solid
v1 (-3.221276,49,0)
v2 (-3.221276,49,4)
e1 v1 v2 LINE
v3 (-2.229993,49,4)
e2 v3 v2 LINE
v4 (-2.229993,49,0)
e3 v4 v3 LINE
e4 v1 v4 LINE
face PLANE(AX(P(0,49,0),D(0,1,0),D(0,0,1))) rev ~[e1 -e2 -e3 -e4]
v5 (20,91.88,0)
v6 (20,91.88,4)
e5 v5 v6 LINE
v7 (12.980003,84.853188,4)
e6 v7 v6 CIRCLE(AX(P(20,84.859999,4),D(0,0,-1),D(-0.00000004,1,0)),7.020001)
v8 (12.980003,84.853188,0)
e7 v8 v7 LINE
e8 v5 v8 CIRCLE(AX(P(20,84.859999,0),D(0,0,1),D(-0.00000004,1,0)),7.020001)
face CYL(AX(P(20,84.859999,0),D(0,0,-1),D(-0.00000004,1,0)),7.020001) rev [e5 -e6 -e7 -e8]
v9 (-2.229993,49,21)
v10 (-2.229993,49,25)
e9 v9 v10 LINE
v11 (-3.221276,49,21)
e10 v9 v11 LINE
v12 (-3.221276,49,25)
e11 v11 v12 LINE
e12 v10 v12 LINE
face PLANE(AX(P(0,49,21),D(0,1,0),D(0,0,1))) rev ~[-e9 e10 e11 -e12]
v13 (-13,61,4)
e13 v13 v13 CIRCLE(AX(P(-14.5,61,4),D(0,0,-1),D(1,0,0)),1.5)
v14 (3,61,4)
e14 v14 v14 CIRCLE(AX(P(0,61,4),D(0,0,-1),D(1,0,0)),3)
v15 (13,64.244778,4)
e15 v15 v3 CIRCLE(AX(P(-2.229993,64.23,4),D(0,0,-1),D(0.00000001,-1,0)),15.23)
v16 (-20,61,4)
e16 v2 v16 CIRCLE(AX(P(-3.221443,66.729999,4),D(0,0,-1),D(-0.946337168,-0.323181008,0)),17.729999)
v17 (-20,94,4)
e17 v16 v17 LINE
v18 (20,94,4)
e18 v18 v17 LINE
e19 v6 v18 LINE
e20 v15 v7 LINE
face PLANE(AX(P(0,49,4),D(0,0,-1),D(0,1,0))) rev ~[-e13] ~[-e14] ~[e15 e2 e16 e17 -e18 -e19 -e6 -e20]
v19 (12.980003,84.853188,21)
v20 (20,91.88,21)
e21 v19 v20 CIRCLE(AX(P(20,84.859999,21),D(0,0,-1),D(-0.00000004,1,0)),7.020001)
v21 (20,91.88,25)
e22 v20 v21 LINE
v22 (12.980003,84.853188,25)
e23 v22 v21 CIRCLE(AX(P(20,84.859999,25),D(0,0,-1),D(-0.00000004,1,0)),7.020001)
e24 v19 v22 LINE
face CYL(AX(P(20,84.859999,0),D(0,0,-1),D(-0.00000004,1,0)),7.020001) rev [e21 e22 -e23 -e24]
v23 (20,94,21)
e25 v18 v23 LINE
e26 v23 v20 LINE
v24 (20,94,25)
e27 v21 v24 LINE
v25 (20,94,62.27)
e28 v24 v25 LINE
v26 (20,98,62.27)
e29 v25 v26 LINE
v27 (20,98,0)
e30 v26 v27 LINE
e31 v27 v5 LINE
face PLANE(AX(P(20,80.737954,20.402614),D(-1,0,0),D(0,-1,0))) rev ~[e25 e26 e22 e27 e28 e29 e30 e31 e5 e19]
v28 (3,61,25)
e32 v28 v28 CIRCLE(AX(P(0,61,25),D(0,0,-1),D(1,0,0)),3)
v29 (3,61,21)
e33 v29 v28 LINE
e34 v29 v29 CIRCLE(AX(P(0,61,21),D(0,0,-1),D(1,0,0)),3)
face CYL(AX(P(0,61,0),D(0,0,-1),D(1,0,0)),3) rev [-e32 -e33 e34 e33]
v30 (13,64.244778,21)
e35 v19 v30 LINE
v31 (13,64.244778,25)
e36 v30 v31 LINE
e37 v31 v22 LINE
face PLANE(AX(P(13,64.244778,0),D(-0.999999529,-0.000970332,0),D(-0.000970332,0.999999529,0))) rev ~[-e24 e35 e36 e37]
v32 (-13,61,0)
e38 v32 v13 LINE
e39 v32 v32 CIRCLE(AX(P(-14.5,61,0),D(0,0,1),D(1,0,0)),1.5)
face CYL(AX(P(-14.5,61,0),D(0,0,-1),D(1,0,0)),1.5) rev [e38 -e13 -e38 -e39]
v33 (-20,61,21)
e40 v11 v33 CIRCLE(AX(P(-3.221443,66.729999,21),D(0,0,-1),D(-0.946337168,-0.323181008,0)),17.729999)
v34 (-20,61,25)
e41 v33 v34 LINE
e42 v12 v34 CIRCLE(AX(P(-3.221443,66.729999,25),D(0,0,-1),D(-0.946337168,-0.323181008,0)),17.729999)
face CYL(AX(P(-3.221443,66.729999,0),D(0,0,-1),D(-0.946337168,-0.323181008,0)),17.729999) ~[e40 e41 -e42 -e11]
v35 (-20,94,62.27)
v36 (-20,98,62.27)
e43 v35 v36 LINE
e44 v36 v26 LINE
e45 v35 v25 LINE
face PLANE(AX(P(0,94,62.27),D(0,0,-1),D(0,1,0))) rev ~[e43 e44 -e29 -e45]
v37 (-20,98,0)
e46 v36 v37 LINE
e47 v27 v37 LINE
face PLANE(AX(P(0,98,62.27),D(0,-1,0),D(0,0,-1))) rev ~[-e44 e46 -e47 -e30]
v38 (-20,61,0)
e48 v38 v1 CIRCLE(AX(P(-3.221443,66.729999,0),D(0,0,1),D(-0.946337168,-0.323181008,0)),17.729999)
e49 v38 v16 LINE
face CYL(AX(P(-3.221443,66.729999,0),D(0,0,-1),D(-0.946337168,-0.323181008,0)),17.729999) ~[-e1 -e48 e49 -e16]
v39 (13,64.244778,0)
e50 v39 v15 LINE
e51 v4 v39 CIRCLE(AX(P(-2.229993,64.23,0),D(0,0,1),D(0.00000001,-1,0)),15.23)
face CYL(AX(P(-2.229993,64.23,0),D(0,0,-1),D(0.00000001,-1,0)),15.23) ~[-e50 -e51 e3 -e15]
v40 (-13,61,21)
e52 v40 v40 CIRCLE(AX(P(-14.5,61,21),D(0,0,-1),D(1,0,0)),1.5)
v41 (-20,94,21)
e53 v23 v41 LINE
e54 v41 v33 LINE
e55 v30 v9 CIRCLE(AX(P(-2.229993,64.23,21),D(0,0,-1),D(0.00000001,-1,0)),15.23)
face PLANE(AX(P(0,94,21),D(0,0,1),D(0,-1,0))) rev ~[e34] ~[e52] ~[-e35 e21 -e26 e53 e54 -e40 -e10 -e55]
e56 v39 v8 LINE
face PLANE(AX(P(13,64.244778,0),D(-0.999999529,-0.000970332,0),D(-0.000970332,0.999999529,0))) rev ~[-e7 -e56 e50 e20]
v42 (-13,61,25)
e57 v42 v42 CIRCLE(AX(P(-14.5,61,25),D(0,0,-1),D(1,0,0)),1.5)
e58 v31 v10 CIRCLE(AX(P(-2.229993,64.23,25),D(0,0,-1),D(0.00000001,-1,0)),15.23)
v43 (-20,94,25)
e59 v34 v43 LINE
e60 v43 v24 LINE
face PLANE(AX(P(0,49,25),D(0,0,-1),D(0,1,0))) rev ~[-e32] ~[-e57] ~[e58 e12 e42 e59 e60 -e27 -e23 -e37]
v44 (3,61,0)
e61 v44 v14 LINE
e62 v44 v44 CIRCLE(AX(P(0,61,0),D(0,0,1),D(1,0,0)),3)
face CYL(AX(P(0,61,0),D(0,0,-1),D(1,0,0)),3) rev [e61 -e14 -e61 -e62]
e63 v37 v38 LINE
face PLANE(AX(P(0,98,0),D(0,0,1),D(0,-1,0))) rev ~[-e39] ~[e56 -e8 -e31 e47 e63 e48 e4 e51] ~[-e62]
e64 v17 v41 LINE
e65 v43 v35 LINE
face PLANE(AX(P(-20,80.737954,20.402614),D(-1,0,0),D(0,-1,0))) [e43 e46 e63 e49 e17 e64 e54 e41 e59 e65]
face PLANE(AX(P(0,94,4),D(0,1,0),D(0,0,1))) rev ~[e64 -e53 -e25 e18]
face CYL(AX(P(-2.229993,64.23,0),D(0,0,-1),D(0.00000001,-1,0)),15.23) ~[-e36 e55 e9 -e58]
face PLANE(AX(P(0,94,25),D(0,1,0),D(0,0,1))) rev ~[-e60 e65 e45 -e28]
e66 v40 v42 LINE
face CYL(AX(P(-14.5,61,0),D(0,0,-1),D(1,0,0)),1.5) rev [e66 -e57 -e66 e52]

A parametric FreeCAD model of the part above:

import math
import FreeCAD as App
import Part
import Sketcher

V = App.Vector
Q = App.Units.Quantity

doc = App.newDocument("Part")
body = doc.addObject("PartDesign::Body", "Body")

# Sketch on YZ plane
sketch1 = body.newObject("Sketcher::SketchObject", "Sketch")
sketch1.AttachmentSupport = (doc.getObject("YZ_Plane"), [""])
sketch1.MapMode = "FlatFace"
sketch1.addGeometry(Part.LineSegment(V(0, 0, 0), V(0, 62.3, 0)), False)
sketch1.addGeometry(Part.LineSegment(V(0, 62.3, 0), V(-4, 62.3, 0)), False)
sketch1.addGeometry(Part.LineSegment(V(-4, 62.3, 0), V(-4, 25, 0)), False)
sketch1.addGeometry(Part.LineSegment(V(-4, 25, 0), V(-49, 25, 0)), False)
sketch1.addGeometry(Part.LineSegment(V(-49, 25, 0), V(-49, 21, 0)), False)
sketch1.addGeometry(Part.LineSegment(V(-49, 21, 0), V(-4, 21, 0)), False)
sketch1.addGeometry(Part.LineSegment(V(-4, 21, 0), V(-4, 4, 0)), False)
sketch1.addGeometry(Part.LineSegment(V(-4, 4, 0), V(-49, 4, 0)), False)
sketch1.addGeometry(Part.LineSegment(V(-49, 4, 0), V(-49, 0, 0)), False)
sketch1.addGeometry(Part.LineSegment(V(-49, 0, 0), V(0, 0, 0)), False)
sketch1.addConstraint(Sketcher.Constraint("Coincident", 0, 2, 1, 1))
sketch1.addConstraint(Sketcher.Constraint("Coincident", 1, 2, 2, 1))
sketch1.addConstraint(Sketcher.Constraint("Coincident", 2, 2, 3, 1))
sketch1.addConstraint(Sketcher.Constraint("Coincident", 3, 2, 4, 1))
sketch1.addConstraint(Sketcher.Constraint("Coincident", 4, 2, 5, 1))
sketch1.addConstraint(Sketcher.Constraint("Coincident", 5, 2, 6, 1))
sketch1.addConstraint(Sketcher.Constraint("Coincident", 6, 2, 7, 1))
sketch1.addConstraint(Sketcher.Constraint("Coincident", 7, 2, 8, 1))
sketch1.addConstraint(Sketcher.Constraint("Coincident", 8, 2, 9, 1))
sketch1.addConstraint(Sketcher.Constraint("Coincident", 9, 2, 0, 1))
sketch1.addConstraint(Sketcher.Constraint("Vertical", 0))
sketch1.addConstraint(Sketcher.Constraint("Horizontal", 1))
sketch1.addConstraint(Sketcher.Constraint("Vertical", 2))
sketch1.addConstraint(Sketcher.Constraint("Horizontal", 3))
sketch1.addConstraint(Sketcher.Constraint("Vertical", 4))
sketch1.addConstraint(Sketcher.Constraint("Horizontal", 5))
sketch1.addConstraint(Sketcher.Constraint("Vertical", 6))
sketch1.addConstraint(Sketcher.Constraint("Horizontal", 7))
sketch1.addConstraint(Sketcher.Constraint("Vertical", 8))
sketch1.addConstraint(Sketcher.Constraint("Horizontal", 9))
sketch1.addConstraint(Sketcher.Constraint("Coincident", 9, 2, -1, 1))
sketch1.addConstraint(Sketcher.Constraint("Vertical", 2, 2, 5, 2))
sketch1.addConstraint(Sketcher.Constraint("Vertical", 4, 2, 7, 2))
sketch1.addConstraint(Sketcher.Constraint("Equal", 1, 4))
sketch1.addConstraint(Sketcher.Constraint("Equal", 4, 8))
sketch1.addConstraint(Sketcher.Constraint("DistanceX", 1, 2, 1, 1, Q("4 mm")))
sketch1.addConstraint(Sketcher.Constraint("DistanceX", 3, 2, 3, 1, Q("45 mm")))
sketch1.addConstraint(Sketcher.Constraint("DistanceY", 6, 2, 6, 1, Q("17 mm")))
sketch1.addConstraint(Sketcher.Constraint("DistanceY", 0, 1, 0, 2, Q("62.27 mm")))
pad1 = body.newObject("PartDesign::Pad", "Pad")
pad1.Profile = sketch1
pad1.Length = 40
pad1.Midplane = True

# Sketch on XY plane
sketch2 = body.newObject("Sketcher::SketchObject", "Sketch001")
sketch2.AttachmentSupport = (doc.getObject("XY_Plane"), [""])
sketch2.MapMode = "FlatFace"
sketch2.addGeometry(Part.Circle(V(0, -37, 0), V(0, 0, 1), 3), False)
sketch2.addConstraint(Sketcher.Constraint("PointOnObject", 0, 3, -2))
sketch2.addConstraint(Sketcher.Constraint("Diameter", 0, Q("6 mm")))
sketch2.addConstraint(Sketcher.Constraint("DistanceY", 0, 3, -1, 1, Q("37 mm")))
pocket1 = body.newObject("PartDesign::Pocket", "Pocket")
pocket1.Profile = sketch2
pocket1.Type = "ThroughAll"
pocket1.Reversed = True

# Sketch on XY plane
sketch3 = body.newObject("Sketcher::SketchObject", "Sketch002")
sketch3.AttachmentSupport = (doc.getObject("XY_Plane"), [""])
sketch3.MapMode = "FlatFace"
sketch3.addGeometry(Part.Circle(V(-14.5, -37, 0), V(0, 0, 1), 1.5), False)
sketch3.addGeometry(Part.ArcOfCircle(Part.Circle(V(-3.2, -31.3, 0), V(0, 0, 1), 17.7), math.radians(-161), math.radians(-90)), False)
sketch3.addGeometry(Part.LineSegment(V(-20, -37, 0), V(-20, -54.2, 0)), False)
sketch3.addGeometry(Part.LineSegment(V(-20, -54.2, 0), V(20, -54.2, 0)), False)
sketch3.addGeometry(Part.LineSegment(V(20, -54.2, 0), V(20, -6.1, 0)), False)
sketch3.addGeometry(Part.ArcOfCircle(Part.Circle(V(20, -13.1, 0), V(0, 0, 1), 7), math.radians(90), math.radians(180)), False)
sketch3.addGeometry(Part.LineSegment(V(13, -13.1, 0), V(13, -33.8, 0)), False)
sketch3.addGeometry(Part.ArcOfCircle(Part.Circle(V(-2.2, -33.8, 0), V(0, 0, 1), 15.2), math.radians(-90), math.radians(0)), False)
sketch3.addGeometry(Part.LineSegment(V(-2.2, -49, 0), V(-3.2, -49, 0)), False)
sketch3.addConstraint(Sketcher.Constraint("Coincident", 1, 1, 2, 1))
sketch3.addConstraint(Sketcher.Constraint("Coincident", 2, 2, 3, 1))
sketch3.addConstraint(Sketcher.Constraint("Coincident", 3, 2, 4, 1))
sketch3.addConstraint(Sketcher.Constraint("Coincident", 4, 2, 5, 1))
sketch3.addConstraint(Sketcher.Constraint("Tangent", 5, 2, 6, 1))
sketch3.addConstraint(Sketcher.Constraint("Tangent", 6, 2, 7, 2))
sketch3.addConstraint(Sketcher.Constraint("Tangent", 7, 1, 8, 1))
sketch3.addConstraint(Sketcher.Constraint("Coincident", 8, 2, 1, 2))
sketch3.addConstraint(Sketcher.Constraint("Vertical", 2))
sketch3.addConstraint(Sketcher.Constraint("Horizontal", 3))
sketch3.addConstraint(Sketcher.Constraint("Vertical", 4))
sketch3.addConstraint(Sketcher.Constraint("Horizontal", 8))
sketch3.addConstraint(Sketcher.Constraint("Horizontal", 0, 3, 1, 1))
sketch3.addConstraint(Sketcher.Constraint("Vertical", 5, 3, 3, 2))
sketch3.addConstraint(Sketcher.Constraint("Diameter", 0, Q("3 mm")))
sketch3.addConstraint(Sketcher.Constraint("DistanceX", 3, 1, 3, 2, Q("40 mm")))
sketch3.addConstraint(Sketcher.Constraint("Radius", 1, Q("17.729999 mm")))
sketch3.addConstraint(Sketcher.Constraint("Radius", 5, Q("7.020001 mm")))
sketch3.addConstraint(Sketcher.Constraint("Radius", 7, Q("15.23 mm")))
sketch3.addConstraint(Sketcher.Constraint("DistanceY", 0, 3, -1, 1, Q("37 mm")))
sketch3.addConstraint(Sketcher.Constraint("DistanceX", -1, 1, 5, 3, Q("20 mm")))
sketch3.addConstraint(Sketcher.Constraint("DistanceX", -1, 1, 6, 2, Q("13 mm")))
sketch3.addConstraint(Sketcher.Constraint("DistanceY", 7, 1, -1, 1, Q("49 mm")))
sketch3.addConstraint(Sketcher.Constraint("DistanceY", 2, 2, 2, 1, Q("17.21 mm")))
sketch3.addConstraint(Sketcher.Constraint("DistanceY", 4, 1, 4, 2, Q("48.09 mm")))
sketch3.addConstraint(Sketcher.Constraint("DistanceX", 0, 3, -1, 1, Q("14.5 mm")))
sketch3.addConstraint(Sketcher.Constraint("DistanceX", 8, 2, 8, 1, Q("0.991283 mm")))
pocket2 = body.newObject("PartDesign::Pocket", "Pocket001")
pocket2.Profile = sketch3
pocket2.Type = "ThroughAll"
pocket2.Midplane = True
body2 = doc.addObject("PartDesign::Body", "Body001")
doc.recompute()

body.Placement = App.Placement(V(0, 98, 0), App.Rotation(V(0, 0, 1), 0))
boolean = body2.newObject("PartDesign::Boolean", "Boolean")
boolean.Type = "Fuse"
boolean.addObjects([body])

doc.recompute()
